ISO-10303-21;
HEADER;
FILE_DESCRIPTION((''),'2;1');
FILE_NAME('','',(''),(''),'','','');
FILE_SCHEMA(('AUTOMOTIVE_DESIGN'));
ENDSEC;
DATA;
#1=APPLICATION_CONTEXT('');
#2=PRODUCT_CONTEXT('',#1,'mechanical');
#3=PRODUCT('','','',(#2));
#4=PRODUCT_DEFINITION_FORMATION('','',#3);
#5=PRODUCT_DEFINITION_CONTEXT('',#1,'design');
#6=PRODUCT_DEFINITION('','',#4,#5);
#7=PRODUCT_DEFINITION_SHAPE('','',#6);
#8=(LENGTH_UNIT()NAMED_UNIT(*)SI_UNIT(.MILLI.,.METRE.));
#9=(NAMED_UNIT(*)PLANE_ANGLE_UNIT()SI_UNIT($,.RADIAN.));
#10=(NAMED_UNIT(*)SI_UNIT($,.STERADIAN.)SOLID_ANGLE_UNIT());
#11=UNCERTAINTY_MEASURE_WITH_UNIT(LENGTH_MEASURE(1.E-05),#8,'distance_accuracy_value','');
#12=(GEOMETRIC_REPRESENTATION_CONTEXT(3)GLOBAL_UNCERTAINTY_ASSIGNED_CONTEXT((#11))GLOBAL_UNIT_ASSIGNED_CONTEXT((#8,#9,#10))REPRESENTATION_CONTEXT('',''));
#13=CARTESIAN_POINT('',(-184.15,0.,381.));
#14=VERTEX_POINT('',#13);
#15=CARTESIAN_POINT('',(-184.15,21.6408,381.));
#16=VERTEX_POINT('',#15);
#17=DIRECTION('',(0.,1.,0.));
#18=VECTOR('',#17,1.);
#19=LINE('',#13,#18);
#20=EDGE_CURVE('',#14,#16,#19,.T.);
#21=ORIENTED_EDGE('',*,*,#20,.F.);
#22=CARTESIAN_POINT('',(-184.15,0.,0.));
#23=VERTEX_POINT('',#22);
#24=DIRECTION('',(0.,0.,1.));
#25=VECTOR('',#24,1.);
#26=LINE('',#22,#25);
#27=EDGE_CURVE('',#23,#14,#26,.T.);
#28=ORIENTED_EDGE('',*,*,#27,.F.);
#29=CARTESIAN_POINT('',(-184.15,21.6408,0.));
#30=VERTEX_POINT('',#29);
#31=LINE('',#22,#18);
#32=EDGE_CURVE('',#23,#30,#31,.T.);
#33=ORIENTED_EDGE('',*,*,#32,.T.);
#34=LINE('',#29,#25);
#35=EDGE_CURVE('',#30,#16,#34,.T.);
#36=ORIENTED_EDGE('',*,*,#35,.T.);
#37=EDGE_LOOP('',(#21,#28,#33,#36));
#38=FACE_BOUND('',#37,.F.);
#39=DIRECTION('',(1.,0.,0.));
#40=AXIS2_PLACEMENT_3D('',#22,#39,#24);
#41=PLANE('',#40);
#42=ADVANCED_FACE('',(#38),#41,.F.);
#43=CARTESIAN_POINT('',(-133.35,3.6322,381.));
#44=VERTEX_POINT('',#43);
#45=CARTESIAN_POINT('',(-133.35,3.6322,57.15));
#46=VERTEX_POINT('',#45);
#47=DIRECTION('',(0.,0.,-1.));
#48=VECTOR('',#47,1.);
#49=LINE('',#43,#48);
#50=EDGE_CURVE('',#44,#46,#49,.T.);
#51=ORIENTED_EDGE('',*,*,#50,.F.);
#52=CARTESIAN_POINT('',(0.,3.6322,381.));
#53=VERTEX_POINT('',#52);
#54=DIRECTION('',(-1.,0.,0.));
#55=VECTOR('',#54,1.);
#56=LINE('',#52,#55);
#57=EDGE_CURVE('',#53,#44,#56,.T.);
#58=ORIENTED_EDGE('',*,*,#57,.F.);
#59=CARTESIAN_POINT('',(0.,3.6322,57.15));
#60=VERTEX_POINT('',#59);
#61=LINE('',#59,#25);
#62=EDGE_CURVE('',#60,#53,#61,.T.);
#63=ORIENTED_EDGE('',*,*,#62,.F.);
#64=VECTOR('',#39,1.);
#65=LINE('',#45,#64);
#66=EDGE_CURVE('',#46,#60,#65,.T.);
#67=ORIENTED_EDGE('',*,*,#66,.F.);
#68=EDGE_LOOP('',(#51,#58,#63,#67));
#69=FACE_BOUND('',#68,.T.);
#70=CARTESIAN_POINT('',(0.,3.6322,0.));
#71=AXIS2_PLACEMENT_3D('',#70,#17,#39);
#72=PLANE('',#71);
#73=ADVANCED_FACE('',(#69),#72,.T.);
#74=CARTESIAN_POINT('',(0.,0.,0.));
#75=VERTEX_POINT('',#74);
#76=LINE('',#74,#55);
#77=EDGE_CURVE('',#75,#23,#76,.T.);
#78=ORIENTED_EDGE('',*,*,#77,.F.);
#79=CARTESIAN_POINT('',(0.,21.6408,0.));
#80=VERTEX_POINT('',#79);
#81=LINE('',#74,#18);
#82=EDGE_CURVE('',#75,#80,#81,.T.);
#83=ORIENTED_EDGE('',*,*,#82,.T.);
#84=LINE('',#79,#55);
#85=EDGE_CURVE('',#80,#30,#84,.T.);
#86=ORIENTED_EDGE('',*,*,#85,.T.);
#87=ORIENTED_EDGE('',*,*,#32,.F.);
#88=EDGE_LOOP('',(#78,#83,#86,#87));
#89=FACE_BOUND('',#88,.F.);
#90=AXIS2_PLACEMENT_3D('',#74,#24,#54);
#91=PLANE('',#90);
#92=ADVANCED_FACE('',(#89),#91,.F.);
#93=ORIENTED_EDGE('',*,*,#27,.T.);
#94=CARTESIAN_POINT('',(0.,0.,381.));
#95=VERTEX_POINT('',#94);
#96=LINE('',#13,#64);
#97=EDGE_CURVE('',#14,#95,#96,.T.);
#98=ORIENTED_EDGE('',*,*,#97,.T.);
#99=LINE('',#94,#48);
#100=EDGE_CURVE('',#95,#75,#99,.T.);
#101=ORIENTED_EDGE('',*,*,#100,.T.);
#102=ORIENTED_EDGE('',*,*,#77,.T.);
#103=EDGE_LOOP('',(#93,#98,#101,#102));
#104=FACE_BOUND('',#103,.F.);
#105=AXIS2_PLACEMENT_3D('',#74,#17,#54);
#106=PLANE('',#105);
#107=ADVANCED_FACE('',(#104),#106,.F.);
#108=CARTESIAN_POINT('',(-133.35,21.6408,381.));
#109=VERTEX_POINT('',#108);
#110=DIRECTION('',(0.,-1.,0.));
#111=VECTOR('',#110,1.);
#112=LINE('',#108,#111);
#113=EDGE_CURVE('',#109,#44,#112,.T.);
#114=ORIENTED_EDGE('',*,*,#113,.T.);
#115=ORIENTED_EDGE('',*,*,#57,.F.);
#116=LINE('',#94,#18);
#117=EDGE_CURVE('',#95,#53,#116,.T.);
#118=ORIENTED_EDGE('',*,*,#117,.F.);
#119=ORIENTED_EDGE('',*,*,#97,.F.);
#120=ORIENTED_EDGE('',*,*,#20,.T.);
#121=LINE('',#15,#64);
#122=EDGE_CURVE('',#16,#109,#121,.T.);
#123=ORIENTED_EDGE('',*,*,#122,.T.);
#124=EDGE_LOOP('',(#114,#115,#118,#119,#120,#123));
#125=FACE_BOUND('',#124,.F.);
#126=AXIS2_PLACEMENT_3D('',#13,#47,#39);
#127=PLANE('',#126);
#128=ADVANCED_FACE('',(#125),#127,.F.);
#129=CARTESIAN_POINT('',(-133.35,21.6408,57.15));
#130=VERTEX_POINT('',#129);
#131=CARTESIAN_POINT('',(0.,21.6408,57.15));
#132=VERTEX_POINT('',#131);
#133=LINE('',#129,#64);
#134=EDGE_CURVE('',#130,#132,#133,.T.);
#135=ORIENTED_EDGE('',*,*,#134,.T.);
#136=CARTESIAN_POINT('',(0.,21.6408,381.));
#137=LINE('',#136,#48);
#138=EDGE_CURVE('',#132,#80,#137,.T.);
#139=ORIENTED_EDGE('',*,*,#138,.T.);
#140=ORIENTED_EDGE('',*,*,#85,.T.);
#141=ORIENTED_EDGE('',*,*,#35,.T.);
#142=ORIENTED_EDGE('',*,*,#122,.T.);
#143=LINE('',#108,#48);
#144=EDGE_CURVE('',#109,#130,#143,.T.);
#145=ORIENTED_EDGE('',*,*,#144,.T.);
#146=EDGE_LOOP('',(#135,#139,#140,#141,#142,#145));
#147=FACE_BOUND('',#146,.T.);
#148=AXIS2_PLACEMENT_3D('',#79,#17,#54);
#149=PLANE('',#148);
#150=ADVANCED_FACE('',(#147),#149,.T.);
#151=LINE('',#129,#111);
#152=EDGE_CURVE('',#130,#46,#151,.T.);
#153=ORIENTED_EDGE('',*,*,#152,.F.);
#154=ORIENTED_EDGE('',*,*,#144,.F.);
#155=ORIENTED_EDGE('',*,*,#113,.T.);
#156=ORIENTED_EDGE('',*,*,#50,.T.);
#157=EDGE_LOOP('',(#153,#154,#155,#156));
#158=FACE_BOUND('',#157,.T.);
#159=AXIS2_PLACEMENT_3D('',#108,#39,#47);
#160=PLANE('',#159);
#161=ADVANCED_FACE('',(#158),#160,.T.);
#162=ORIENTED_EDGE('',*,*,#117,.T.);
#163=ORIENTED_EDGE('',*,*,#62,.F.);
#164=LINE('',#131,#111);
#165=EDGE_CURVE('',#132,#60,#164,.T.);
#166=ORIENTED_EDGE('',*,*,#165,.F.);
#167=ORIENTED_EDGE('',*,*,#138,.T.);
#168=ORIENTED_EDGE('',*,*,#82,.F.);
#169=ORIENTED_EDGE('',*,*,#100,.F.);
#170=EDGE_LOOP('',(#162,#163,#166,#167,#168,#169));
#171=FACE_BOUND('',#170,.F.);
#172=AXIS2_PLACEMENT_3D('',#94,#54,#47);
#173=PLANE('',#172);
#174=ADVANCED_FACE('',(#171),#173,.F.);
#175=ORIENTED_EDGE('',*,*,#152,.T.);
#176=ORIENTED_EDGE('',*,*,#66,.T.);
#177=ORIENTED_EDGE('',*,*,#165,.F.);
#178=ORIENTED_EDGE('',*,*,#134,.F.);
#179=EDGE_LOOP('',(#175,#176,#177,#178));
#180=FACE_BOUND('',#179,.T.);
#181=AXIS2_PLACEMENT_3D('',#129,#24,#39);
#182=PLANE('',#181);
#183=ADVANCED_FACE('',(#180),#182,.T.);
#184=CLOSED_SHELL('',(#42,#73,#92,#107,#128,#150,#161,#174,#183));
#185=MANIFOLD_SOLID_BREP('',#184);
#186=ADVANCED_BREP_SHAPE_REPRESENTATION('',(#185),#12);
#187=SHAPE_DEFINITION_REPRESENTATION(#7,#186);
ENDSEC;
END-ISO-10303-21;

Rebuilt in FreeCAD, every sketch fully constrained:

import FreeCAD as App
import Part
import Sketcher

V = App.Vector
Q = App.Units.Quantity

doc = App.newDocument("Part")
params = doc.addObject("Spreadsheet::Sheet", "Params")
for row, (alias, value) in enumerate([
    ("sketch1_height", "15 in"),
    ("sketch1_width", "7.25 in"),
    ("pad1_length", "0.852 in"),
    ("sketch2_width", "5.25 in"),
    ("sketch2_height", "12.75 in"),
    ("pocket1_length", "0.709 in"),
], start=1):
    params.set(f"A{row}", alias)
    params.set(f"B{row}", "=" + value)
    params.setAlias(f"B{row}", alias)

body = doc.addObject("PartDesign::Body", "Body")

# Sketch on XZ plane
sketch1 = doc.addObject("Sketcher::SketchObject", "Sketch")
body.addObject(sketch1)
sketch1.AttachmentSupport = (doc.XZ_Plane, [""])
sketch1.MapMode = "FlatFace"
sketch1.addGeometry([
    Part.LineSegment(V(0, 381, 0), V(0, 0, 0)),
    Part.LineSegment(V(0, 0, 0), V(-184, 0, 0)),
    Part.LineSegment(V(-184, 0, 0), V(-184, 381, 0)),
    Part.LineSegment(V(-184, 381, 0), V(0, 381, 0)),
], False)
sketch1.addConstraint([
    Sketcher.Constraint("Coincident", 0, 2, 1, 1),
    Sketcher.Constraint("Coincident", 1, 2, 2, 1),
    Sketcher.Constraint("Coincident", 2, 2, 3, 1),
    Sketcher.Constraint("Coincident", 3, 2, 0, 1),
    Sketcher.Constraint("Vertical", 0),
    Sketcher.Constraint("Horizontal", 1),
    Sketcher.Constraint("Vertical", 2),
    Sketcher.Constraint("Horizontal", 3),
    Sketcher.Constraint("Coincident", 0, 2, -1, 1),
    Sketcher.Constraint("DistanceY", 0, 2, 0, 1, Q("15 in")),
    Sketcher.Constraint("DistanceX", 1, 2, 1, 1, Q("7.25 in")),
])
sketch1.setExpression("Constraints[9]", "Params.sketch1_height")
sketch1.setExpression("Constraints[10]", "Params.sketch1_width")
pad1 = doc.addObject("PartDesign::Pad", "Pad")
body.addObject(pad1)
pad1.Profile = sketch1
pad1.setExpression("Length", "Params.pad1_length")
pad1.Reversed = True

# Sketch on XZ plane
sketch2 = doc.addObject("Sketcher::SketchObject", "Sketch001")
body.addObject(sketch2)
sketch2.AttachmentSupport = (doc.XZ_Plane, [""])
sketch2.MapMode = "FlatFace"
sketch2.AttachmentOffset = App.Placement(V(0, 0, -0.852 * 25.4), App.Rotation())
sketch2.addGeometry([
    Part.LineSegment(V(-133, 381, 0), V(0, 381, 0)),
    Part.LineSegment(V(0, 381, 0), V(0, 57, 0)),
    Part.LineSegment(V(0, 57, 0), V(-133, 57, 0)),
    Part.LineSegment(V(-133, 57, 0), V(-133, 381, 0)),
], False)
sketch2.addConstraint([
    Sketcher.Constraint("Coincident", 0, 2, 1, 1),
    Sketcher.Constraint("Coincident", 1, 2, 2, 1),
    Sketcher.Constraint("Coincident", 2, 2, 3, 1),
    Sketcher.Constraint("Coincident", 3, 2, 0, 1),
    Sketcher.Constraint("Horizontal", 0),
    Sketcher.Constraint("Vertical", 1),
    Sketcher.Constraint("Horizontal", 2),
    Sketcher.Constraint("Vertical", 3),
    Sketcher.Constraint("PointOnObject", 0, 2, -2),
    Sketcher.Constraint("DistanceX", 0, 1, 0, 2, Q("5.25 in")),
    Sketcher.Constraint("DistanceY", 1, 2, 1, 1, Q("12.75 in")),
    Sketcher.Constraint("DistanceY", -1, 1, 0, 2, Q("15 in")),
])
sketch2.setExpression("Constraints[9]", "Params.sketch2_width")
sketch2.setExpression("Constraints[10]", "Params.sketch2_height")
pocket1 = doc.addObject("PartDesign::Pocket", "Pocket")
body.addObject(pocket1)
pocket1.Profile = sketch2
pocket1.setExpression("Length", "Params.pocket1_length")
pocket1.Reversed = True

doc.recompute()
